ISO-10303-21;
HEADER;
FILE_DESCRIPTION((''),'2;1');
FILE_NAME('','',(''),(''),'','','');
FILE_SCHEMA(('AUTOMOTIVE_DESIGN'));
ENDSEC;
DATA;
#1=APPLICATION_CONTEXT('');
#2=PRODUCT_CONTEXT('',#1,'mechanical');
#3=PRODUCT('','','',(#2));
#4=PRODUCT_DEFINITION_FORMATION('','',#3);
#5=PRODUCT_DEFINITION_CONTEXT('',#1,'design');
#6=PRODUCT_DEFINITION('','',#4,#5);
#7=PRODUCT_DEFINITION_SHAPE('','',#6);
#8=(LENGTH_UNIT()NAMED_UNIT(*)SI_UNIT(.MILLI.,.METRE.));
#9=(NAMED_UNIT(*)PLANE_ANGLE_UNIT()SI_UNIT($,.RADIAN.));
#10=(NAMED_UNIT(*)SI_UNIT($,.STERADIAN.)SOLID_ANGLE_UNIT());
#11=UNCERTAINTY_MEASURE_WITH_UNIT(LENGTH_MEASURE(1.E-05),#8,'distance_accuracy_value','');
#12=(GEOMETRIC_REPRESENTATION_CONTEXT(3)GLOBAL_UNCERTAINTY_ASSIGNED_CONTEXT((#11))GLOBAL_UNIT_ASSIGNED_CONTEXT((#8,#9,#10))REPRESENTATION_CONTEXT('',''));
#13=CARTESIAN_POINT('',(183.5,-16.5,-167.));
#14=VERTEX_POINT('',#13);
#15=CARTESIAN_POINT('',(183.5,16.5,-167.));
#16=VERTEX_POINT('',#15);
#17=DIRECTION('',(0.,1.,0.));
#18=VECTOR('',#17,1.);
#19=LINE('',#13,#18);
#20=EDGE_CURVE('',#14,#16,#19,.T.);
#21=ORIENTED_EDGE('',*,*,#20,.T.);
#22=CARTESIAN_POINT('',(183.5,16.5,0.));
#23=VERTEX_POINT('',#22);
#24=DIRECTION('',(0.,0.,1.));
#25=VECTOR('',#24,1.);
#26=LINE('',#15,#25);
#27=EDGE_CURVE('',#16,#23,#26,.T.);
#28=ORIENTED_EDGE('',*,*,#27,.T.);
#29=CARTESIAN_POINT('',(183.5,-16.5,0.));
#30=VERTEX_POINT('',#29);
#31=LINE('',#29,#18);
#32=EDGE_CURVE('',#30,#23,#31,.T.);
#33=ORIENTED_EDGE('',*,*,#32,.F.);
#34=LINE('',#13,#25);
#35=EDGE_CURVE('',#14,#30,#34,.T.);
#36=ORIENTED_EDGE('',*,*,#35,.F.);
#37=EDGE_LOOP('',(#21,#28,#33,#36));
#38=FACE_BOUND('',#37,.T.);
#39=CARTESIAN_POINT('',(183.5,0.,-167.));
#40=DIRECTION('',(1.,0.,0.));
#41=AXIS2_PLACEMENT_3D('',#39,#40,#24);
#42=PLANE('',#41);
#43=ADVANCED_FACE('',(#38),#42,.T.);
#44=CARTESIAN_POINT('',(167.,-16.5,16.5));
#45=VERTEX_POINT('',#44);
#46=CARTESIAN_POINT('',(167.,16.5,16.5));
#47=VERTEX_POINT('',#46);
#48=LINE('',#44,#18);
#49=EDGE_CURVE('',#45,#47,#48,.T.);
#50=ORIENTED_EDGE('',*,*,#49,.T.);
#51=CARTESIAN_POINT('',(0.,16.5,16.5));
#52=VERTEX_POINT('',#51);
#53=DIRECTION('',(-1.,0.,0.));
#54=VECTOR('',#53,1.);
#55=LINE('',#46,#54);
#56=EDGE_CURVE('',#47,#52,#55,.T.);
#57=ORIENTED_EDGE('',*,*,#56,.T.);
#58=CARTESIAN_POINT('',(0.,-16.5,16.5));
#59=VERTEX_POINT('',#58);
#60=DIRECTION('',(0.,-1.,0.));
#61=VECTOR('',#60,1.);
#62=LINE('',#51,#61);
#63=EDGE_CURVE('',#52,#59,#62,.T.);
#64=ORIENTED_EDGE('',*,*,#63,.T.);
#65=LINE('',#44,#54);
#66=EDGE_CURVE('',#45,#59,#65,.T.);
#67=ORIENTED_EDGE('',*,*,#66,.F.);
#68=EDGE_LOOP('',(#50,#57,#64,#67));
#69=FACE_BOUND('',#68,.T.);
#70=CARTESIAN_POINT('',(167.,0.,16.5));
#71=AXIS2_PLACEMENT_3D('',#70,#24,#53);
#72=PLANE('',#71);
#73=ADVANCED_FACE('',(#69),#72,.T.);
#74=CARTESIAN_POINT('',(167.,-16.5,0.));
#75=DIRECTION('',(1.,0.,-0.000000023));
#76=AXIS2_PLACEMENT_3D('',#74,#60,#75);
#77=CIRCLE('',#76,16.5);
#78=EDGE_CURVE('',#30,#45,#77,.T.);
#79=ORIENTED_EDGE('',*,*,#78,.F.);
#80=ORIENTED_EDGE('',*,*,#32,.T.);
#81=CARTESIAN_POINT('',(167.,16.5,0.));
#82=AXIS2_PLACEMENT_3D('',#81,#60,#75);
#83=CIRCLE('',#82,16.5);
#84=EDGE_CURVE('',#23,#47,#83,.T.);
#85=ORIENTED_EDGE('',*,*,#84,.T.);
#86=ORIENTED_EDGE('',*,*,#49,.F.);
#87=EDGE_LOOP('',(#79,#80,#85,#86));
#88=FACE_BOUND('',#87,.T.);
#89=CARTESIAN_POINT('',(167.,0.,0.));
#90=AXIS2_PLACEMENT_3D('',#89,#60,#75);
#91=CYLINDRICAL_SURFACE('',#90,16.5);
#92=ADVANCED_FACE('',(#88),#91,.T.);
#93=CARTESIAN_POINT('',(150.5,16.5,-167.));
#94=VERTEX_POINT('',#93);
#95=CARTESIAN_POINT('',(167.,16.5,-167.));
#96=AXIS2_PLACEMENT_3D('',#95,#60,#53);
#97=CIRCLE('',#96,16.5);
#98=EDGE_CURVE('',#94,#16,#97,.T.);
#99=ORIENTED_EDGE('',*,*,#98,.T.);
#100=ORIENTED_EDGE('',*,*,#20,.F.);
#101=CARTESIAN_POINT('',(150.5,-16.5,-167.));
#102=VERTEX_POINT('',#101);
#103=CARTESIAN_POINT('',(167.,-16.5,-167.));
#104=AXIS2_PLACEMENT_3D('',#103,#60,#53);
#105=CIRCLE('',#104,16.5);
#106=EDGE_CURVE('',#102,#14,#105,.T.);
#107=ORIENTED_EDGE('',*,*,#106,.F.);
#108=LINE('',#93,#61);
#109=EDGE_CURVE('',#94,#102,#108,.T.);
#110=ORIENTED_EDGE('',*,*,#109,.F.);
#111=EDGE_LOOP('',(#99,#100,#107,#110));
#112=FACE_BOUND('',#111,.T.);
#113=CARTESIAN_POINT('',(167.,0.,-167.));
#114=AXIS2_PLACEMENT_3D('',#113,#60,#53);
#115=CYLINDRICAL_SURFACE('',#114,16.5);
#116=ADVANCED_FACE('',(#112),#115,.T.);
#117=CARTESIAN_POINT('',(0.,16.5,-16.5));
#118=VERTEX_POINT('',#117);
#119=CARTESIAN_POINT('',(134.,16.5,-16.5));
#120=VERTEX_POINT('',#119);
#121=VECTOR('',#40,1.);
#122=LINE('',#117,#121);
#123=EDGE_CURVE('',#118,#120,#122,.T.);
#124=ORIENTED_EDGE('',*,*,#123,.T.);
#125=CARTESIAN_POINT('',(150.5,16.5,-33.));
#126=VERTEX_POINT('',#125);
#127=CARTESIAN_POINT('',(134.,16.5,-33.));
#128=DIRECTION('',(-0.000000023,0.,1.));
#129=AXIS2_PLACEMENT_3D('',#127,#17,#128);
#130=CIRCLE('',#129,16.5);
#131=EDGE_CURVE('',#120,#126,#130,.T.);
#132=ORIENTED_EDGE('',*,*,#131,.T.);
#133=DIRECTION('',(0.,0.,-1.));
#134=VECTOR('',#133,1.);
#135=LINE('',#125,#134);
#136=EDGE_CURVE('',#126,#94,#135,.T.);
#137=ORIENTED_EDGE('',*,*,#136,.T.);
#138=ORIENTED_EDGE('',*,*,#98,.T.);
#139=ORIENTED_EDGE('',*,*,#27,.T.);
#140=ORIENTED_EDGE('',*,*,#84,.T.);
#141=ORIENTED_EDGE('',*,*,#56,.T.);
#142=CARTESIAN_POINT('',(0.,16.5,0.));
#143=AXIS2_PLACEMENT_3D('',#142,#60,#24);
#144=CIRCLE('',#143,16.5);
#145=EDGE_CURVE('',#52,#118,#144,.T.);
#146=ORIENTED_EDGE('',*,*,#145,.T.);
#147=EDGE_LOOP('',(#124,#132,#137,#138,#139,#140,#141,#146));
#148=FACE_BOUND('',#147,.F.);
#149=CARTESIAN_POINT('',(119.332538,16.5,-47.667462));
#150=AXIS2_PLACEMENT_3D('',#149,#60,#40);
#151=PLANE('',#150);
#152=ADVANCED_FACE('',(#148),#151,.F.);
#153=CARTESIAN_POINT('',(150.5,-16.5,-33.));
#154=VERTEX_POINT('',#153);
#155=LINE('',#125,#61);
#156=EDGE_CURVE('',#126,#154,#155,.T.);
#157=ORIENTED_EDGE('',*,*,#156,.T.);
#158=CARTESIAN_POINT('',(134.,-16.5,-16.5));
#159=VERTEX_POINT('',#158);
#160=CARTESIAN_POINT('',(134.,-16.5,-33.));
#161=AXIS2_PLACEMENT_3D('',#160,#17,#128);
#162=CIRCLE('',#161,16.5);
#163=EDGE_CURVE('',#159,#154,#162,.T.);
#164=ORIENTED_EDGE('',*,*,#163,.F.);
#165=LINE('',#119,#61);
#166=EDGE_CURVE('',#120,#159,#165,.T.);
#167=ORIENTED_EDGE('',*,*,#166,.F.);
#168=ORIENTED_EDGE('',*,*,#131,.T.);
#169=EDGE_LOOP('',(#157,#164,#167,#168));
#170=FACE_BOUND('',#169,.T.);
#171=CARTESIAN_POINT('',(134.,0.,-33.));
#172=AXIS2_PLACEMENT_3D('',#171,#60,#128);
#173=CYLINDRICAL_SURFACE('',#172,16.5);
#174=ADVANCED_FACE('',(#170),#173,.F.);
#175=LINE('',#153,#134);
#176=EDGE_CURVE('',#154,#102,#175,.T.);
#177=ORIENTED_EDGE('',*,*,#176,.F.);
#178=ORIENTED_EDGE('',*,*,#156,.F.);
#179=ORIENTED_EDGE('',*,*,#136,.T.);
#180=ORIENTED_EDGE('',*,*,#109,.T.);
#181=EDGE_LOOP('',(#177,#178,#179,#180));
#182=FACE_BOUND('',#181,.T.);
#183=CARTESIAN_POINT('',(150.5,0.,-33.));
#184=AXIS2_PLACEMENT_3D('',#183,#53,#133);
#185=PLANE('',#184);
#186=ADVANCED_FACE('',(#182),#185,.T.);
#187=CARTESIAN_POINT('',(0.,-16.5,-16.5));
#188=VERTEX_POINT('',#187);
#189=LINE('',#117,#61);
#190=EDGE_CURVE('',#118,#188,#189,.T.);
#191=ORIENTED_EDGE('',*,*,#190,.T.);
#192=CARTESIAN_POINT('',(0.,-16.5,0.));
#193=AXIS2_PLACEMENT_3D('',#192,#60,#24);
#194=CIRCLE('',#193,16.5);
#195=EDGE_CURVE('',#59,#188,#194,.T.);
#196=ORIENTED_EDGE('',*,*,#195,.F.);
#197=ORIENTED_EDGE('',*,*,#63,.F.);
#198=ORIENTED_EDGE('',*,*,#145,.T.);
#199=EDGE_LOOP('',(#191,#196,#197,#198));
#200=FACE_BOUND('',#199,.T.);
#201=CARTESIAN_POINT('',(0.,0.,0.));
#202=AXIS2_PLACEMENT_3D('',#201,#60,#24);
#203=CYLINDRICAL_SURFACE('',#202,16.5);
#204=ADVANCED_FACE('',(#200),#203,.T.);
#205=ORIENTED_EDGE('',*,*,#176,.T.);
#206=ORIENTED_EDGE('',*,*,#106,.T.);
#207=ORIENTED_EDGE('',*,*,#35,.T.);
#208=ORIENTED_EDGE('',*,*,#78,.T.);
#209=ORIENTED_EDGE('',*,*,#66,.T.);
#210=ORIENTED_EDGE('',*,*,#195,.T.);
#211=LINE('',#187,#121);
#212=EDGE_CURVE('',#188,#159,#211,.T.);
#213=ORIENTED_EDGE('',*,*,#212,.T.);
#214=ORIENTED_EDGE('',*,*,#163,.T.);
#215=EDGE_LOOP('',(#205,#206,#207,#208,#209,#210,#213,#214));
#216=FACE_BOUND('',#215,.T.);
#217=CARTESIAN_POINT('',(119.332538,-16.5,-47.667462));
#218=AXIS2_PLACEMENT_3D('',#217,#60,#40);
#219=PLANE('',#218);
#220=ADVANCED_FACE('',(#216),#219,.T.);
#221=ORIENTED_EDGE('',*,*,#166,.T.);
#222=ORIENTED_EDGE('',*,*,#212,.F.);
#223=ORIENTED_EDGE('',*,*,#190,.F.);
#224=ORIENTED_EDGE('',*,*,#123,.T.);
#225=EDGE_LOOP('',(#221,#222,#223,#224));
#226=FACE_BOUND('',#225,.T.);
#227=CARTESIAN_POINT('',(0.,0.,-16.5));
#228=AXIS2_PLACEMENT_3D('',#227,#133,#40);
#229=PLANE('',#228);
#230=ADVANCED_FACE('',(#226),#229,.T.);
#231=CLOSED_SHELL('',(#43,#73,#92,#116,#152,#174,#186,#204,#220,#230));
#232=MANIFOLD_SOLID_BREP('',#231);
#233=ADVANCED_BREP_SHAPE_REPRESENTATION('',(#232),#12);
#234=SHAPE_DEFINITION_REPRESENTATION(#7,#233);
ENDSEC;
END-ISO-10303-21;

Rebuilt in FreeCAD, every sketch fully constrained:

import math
import FreeCAD as App
import Part
import Sketcher
Q = App.Units.Quantity

doc = App.newDocument("Part")
body = doc.addObject("PartDesign::Body", "Body")

sketch1 = doc.addObject("Sketcher::SketchObject", "Sketch")
body.addObject(sketch1)
sketch1.AttachmentSupport = (doc.XZ_Plane, [""])
sketch1.MapMode = "FlatFace"
sketch1.addGeometry([
    Part.LineSegment(App.Vector(167, 16, 0), App.Vector(0, 16, 0)),
    Part.ArcOfCircle(Part.Circle(App.Vector(0, 0, 0), App.Vector(0, 0, 1), 16), math.radians(90), math.radians(270)),
    Part.LineSegment(App.Vector(0, -16, 0), App.Vector(134, -16, 0)),
    Part.ArcOfCircle(Part.Circle(App.Vector(134, -33, 0), App.Vector(0, 0, 1), 16), math.radians(0), math.radians(90)),
    Part.LineSegment(App.Vector(150, -33, 0), App.Vector(150, -167, 0)),
    Part.ArcOfCircle(Part.Circle(App.Vector(167, -167, 0), App.Vector(0, 0, 1), 16), math.radians(180), math.radians(360)),
    Part.LineSegment(App.Vector(184, -167, 0), App.Vector(184, 0, 0)),
    Part.ArcOfCircle(Part.Circle(App.Vector(167, 0, 0), App.Vector(0, 0, 1), 16), math.radians(0), math.radians(90)),
], False)
sketch1.addConstraint([
    Sketcher.Constraint("Tangent", 0, 2, 1, 1),
    Sketcher.Constraint("Tangent", 1, 2, 2, 1),
    Sketcher.Constraint("Tangent", 2, 2, 3, 2),
    Sketcher.Constraint("Tangent", 3, 1, 4, 1),
    Sketcher.Constraint("Tangent", 4, 2, 5, 1),
    Sketcher.Constraint("Tangent", 5, 2, 6, 1),
    Sketcher.Constraint("Tangent", 6, 2, 7, 1),
    Sketcher.Constraint("Tangent", 7, 2, 0, 1),
    Sketcher.Constraint("Horizontal", 0),
    Sketcher.Constraint("Horizontal", 2),
    Sketcher.Constraint("Vertical", 4),
    Sketcher.Constraint("Vertical", 6),
    Sketcher.Constraint("Coincident", 1, 3, -1, 1),
    Sketcher.Constraint("Equal", 1, 3),
    Sketcher.Constraint("Equal", 3, 5),
    Sketcher.Constraint("Equal", 5, 7),
    Sketcher.Constraint("Equal", 2, 4),
    Sketcher.Constraint("Radius", 1, Q("16.5 mm")),
    Sketcher.Constraint("DistanceX", 0, 2, 0, 1, Q("167 mm")),
])
pad1 = doc.addObject("PartDesign::Pad", "Pad")
body.addObject(pad1)
pad1.Profile = sketch1
pad1.Length = 33
pad1.Midplane = True

doc.recompute()
